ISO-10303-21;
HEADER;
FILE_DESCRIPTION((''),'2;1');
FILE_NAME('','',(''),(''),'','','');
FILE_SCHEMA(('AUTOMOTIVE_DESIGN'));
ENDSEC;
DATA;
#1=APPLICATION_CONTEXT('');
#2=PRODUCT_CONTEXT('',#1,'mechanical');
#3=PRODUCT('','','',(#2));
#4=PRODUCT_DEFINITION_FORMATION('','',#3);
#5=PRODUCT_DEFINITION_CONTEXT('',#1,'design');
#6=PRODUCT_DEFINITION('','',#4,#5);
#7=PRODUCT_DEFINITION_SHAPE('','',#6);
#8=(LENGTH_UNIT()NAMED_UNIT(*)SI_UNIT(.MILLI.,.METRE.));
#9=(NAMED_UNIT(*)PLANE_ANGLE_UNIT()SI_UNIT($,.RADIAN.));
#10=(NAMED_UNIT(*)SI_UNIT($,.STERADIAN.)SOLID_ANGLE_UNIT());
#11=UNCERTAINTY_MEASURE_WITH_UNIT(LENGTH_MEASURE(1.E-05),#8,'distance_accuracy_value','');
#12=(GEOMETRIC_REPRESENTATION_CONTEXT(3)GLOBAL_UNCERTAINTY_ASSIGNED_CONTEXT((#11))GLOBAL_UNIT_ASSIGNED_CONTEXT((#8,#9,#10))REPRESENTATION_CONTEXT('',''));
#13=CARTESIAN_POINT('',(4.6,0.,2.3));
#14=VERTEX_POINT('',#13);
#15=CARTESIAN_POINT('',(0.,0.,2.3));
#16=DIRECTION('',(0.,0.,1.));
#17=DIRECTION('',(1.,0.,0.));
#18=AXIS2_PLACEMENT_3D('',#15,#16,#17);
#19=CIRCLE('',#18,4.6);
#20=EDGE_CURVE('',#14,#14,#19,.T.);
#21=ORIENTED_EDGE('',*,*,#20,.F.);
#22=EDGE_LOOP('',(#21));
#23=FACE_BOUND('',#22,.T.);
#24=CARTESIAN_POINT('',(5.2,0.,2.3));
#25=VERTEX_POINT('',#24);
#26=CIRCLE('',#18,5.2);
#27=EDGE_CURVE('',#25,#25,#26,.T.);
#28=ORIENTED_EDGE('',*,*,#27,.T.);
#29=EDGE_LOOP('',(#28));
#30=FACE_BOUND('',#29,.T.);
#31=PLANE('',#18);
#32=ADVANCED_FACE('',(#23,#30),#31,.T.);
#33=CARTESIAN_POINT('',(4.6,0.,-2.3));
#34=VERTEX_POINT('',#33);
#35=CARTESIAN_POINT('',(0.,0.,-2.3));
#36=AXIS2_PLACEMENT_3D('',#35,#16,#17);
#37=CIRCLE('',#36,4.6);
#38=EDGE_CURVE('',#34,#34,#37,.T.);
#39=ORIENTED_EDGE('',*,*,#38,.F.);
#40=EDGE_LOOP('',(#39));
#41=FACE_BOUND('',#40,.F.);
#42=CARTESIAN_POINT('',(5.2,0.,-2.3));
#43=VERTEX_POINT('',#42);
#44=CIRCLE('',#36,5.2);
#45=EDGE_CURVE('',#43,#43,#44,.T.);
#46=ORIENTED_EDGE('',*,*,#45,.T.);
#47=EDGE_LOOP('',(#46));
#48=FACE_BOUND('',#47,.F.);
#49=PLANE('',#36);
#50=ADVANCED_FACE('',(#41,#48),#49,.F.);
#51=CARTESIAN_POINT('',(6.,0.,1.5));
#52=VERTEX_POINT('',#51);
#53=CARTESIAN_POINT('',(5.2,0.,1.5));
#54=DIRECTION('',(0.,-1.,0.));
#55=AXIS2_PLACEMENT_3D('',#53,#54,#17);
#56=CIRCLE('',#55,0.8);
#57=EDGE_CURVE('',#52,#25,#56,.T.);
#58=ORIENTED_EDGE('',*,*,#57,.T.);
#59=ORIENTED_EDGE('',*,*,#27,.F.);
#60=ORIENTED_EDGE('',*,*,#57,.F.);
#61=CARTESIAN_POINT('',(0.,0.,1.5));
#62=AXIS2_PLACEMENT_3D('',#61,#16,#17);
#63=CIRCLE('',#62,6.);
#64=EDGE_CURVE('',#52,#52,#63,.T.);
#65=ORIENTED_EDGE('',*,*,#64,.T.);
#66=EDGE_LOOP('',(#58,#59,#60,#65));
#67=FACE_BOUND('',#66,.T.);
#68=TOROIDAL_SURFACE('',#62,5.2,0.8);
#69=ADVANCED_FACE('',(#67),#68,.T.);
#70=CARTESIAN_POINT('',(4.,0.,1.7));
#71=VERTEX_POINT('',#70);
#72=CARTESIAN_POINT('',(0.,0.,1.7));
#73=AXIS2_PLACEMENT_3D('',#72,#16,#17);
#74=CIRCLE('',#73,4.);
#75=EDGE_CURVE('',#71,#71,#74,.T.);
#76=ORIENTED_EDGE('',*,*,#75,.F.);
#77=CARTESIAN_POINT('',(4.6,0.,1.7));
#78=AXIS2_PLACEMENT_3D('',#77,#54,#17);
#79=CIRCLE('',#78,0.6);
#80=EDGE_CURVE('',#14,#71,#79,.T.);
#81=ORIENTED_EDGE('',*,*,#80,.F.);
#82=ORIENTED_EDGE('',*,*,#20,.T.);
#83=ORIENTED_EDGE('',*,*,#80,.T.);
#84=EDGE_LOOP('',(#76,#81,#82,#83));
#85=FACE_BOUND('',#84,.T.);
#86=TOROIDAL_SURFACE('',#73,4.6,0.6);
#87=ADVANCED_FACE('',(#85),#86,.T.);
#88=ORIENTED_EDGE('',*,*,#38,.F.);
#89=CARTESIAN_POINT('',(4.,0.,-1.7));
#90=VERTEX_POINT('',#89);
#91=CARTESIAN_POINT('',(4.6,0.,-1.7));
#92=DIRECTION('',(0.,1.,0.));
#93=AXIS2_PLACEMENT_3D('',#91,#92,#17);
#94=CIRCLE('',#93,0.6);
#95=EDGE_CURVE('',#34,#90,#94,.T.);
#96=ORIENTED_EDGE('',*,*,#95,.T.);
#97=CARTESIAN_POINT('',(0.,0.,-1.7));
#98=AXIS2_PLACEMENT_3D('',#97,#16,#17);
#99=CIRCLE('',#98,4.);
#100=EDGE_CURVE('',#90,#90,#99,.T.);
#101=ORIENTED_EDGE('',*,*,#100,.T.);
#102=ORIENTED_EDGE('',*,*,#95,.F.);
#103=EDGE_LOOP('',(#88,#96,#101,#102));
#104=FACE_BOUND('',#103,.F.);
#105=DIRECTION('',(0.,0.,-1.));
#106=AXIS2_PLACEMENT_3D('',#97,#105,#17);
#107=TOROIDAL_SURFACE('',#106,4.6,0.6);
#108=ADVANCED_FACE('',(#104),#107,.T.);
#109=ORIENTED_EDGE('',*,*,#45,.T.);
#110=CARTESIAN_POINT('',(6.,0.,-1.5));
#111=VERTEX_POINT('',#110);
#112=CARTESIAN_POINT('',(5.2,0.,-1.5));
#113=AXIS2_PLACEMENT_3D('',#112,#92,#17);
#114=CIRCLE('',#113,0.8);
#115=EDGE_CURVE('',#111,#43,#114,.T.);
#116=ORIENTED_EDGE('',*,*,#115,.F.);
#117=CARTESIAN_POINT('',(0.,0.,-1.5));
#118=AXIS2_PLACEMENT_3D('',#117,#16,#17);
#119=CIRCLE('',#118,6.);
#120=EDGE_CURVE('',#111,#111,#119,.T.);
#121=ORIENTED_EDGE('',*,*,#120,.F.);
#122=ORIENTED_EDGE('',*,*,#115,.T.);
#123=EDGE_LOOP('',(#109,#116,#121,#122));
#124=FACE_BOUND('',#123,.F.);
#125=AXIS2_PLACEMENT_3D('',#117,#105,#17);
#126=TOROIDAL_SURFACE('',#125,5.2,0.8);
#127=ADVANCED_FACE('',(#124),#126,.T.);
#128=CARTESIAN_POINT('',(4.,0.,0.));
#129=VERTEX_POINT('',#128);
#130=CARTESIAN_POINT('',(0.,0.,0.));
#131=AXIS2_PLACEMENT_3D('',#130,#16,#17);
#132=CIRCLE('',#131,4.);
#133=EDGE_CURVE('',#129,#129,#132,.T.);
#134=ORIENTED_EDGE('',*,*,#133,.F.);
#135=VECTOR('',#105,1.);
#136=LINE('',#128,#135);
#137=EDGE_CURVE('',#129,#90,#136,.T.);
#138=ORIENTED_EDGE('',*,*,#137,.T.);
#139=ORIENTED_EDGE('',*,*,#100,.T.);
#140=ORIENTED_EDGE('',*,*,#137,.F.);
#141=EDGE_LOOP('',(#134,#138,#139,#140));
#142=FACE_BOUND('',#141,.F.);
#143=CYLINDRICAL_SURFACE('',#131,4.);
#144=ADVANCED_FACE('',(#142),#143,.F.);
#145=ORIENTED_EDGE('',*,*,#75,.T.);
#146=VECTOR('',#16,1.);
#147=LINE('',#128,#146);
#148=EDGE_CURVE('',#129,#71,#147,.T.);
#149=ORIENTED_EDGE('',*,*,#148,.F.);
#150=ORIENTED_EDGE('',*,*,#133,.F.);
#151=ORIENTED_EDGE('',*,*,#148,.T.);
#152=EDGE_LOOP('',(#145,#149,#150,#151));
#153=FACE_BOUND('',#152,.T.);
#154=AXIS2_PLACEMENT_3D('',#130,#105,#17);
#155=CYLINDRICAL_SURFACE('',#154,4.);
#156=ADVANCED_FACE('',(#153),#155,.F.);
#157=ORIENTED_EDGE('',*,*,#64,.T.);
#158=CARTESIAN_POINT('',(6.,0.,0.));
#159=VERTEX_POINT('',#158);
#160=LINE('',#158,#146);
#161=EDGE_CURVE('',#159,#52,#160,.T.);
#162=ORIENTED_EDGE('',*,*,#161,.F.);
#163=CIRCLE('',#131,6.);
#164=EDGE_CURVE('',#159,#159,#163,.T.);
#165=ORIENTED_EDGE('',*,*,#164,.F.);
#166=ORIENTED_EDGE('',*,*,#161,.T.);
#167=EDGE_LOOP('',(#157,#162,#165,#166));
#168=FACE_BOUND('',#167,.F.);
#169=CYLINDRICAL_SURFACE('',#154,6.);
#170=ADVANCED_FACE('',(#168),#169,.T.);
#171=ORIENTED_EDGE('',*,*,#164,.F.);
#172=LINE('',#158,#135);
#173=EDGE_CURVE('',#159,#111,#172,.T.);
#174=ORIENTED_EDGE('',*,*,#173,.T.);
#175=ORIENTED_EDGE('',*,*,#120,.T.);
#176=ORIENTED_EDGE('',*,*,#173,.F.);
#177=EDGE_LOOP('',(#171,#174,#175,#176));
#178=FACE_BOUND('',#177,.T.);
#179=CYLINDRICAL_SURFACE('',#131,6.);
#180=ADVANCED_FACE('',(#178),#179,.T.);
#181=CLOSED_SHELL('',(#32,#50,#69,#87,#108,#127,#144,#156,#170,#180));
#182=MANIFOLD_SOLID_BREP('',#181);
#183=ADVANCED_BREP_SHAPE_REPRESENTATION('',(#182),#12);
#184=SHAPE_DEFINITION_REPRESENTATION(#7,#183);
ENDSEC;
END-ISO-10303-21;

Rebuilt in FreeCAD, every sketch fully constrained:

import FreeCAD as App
import Part
import Sketcher

V = App.Vector


def edges_at(feature, points):
    """Names of the edges that pass closest to the given points."""
    edges = feature.Shape.Edges
    near = lambda p: min(range(len(edges)), key=lambda i: edges[i].distToShape(Part.Vertex(*p))[0])
    return sorted({f"Edge{near(p) + 1}" for p in points})

doc = App.newDocument("Part")
body = doc.addObject("PartDesign::Body", "Body")

sketch1 = body.newObject("Sketcher::SketchObject", "Sketch")
sketch1.AttachmentSupport = (doc.getObject("XY_Plane"), [""])
sketch1.MapMode = "FlatFace"
sketch1.addGeometry([
    Part.Circle(V(0, 0, 0), V(0, 0, 1), 6),
    Part.Circle(V(0, 0, 0), V(0, 0, 1), 4),
], False)
sketch1.addConstraint([
    Sketcher.Constraint("Coincident", 0, 3, -1, 1),
    Sketcher.Constraint("Coincident", 1, 3, -1, 1),
    Sketcher.Constraint("Diameter", 0, 12.0),
    Sketcher.Constraint("Diameter", 1, 8.0),
])
pad1 = body.newObject("PartDesign::Pad", "Pad")
pad1.Profile = sketch1
pad1.Length = 4.6
pad1.Midplane = True
doc.recompute()

fillet = body.newObject("PartDesign::Fillet", "Fillet")
fillet.Base = (pad1, edges_at(pad1, [(-6, 0, 2.3), (-6, 0, -2.3)]))
fillet.Radius = 0.8
doc.recompute()

fillet2 = body.newObject("PartDesign::Fillet", "Fillet001")
fillet2.Base = (fillet, edges_at(fillet, [(-4, 0, 2.3), (-4, 0, -2.3)]))
fillet2.Radius = 0.6

doc.recompute()
